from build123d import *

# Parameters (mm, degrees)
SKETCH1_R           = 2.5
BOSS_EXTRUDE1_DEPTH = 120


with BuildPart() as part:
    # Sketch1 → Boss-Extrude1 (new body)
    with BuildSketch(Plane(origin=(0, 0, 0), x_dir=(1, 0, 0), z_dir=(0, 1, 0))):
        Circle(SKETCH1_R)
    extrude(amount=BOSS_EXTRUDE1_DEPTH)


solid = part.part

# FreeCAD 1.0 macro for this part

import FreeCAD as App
import Part
import Sketcher

V = App.Vector
Q = App.Units.Quantity

doc = App.newDocument("Part")
body = doc.addObject("PartDesign::Body", "Body")

# Sketch on XZ plane
sketch1 = body.newObject("Sketcher::SketchObject", "Sketch")
sketch1.AttachmentSupport = (doc.getObject("XZ_Plane"), [""])
sketch1.MapMode = "FlatFace"
sketch1.addGeometry(Part.Circle(V(0, 0, 0), V(0, 0, 1), 2.5), False)
sketch1.addConstraint([
    Sketcher.Constraint("Coincident", 0, 3, -1, 1),
    Sketcher.Constraint("Diameter", 0, Q("5 mm")),
])
pad1 = body.newObject("PartDesign::Pad", "Pad")
pad1.Profile = sketch1
pad1.Length = 120
pad1.Reversed = True

doc.recompute()
